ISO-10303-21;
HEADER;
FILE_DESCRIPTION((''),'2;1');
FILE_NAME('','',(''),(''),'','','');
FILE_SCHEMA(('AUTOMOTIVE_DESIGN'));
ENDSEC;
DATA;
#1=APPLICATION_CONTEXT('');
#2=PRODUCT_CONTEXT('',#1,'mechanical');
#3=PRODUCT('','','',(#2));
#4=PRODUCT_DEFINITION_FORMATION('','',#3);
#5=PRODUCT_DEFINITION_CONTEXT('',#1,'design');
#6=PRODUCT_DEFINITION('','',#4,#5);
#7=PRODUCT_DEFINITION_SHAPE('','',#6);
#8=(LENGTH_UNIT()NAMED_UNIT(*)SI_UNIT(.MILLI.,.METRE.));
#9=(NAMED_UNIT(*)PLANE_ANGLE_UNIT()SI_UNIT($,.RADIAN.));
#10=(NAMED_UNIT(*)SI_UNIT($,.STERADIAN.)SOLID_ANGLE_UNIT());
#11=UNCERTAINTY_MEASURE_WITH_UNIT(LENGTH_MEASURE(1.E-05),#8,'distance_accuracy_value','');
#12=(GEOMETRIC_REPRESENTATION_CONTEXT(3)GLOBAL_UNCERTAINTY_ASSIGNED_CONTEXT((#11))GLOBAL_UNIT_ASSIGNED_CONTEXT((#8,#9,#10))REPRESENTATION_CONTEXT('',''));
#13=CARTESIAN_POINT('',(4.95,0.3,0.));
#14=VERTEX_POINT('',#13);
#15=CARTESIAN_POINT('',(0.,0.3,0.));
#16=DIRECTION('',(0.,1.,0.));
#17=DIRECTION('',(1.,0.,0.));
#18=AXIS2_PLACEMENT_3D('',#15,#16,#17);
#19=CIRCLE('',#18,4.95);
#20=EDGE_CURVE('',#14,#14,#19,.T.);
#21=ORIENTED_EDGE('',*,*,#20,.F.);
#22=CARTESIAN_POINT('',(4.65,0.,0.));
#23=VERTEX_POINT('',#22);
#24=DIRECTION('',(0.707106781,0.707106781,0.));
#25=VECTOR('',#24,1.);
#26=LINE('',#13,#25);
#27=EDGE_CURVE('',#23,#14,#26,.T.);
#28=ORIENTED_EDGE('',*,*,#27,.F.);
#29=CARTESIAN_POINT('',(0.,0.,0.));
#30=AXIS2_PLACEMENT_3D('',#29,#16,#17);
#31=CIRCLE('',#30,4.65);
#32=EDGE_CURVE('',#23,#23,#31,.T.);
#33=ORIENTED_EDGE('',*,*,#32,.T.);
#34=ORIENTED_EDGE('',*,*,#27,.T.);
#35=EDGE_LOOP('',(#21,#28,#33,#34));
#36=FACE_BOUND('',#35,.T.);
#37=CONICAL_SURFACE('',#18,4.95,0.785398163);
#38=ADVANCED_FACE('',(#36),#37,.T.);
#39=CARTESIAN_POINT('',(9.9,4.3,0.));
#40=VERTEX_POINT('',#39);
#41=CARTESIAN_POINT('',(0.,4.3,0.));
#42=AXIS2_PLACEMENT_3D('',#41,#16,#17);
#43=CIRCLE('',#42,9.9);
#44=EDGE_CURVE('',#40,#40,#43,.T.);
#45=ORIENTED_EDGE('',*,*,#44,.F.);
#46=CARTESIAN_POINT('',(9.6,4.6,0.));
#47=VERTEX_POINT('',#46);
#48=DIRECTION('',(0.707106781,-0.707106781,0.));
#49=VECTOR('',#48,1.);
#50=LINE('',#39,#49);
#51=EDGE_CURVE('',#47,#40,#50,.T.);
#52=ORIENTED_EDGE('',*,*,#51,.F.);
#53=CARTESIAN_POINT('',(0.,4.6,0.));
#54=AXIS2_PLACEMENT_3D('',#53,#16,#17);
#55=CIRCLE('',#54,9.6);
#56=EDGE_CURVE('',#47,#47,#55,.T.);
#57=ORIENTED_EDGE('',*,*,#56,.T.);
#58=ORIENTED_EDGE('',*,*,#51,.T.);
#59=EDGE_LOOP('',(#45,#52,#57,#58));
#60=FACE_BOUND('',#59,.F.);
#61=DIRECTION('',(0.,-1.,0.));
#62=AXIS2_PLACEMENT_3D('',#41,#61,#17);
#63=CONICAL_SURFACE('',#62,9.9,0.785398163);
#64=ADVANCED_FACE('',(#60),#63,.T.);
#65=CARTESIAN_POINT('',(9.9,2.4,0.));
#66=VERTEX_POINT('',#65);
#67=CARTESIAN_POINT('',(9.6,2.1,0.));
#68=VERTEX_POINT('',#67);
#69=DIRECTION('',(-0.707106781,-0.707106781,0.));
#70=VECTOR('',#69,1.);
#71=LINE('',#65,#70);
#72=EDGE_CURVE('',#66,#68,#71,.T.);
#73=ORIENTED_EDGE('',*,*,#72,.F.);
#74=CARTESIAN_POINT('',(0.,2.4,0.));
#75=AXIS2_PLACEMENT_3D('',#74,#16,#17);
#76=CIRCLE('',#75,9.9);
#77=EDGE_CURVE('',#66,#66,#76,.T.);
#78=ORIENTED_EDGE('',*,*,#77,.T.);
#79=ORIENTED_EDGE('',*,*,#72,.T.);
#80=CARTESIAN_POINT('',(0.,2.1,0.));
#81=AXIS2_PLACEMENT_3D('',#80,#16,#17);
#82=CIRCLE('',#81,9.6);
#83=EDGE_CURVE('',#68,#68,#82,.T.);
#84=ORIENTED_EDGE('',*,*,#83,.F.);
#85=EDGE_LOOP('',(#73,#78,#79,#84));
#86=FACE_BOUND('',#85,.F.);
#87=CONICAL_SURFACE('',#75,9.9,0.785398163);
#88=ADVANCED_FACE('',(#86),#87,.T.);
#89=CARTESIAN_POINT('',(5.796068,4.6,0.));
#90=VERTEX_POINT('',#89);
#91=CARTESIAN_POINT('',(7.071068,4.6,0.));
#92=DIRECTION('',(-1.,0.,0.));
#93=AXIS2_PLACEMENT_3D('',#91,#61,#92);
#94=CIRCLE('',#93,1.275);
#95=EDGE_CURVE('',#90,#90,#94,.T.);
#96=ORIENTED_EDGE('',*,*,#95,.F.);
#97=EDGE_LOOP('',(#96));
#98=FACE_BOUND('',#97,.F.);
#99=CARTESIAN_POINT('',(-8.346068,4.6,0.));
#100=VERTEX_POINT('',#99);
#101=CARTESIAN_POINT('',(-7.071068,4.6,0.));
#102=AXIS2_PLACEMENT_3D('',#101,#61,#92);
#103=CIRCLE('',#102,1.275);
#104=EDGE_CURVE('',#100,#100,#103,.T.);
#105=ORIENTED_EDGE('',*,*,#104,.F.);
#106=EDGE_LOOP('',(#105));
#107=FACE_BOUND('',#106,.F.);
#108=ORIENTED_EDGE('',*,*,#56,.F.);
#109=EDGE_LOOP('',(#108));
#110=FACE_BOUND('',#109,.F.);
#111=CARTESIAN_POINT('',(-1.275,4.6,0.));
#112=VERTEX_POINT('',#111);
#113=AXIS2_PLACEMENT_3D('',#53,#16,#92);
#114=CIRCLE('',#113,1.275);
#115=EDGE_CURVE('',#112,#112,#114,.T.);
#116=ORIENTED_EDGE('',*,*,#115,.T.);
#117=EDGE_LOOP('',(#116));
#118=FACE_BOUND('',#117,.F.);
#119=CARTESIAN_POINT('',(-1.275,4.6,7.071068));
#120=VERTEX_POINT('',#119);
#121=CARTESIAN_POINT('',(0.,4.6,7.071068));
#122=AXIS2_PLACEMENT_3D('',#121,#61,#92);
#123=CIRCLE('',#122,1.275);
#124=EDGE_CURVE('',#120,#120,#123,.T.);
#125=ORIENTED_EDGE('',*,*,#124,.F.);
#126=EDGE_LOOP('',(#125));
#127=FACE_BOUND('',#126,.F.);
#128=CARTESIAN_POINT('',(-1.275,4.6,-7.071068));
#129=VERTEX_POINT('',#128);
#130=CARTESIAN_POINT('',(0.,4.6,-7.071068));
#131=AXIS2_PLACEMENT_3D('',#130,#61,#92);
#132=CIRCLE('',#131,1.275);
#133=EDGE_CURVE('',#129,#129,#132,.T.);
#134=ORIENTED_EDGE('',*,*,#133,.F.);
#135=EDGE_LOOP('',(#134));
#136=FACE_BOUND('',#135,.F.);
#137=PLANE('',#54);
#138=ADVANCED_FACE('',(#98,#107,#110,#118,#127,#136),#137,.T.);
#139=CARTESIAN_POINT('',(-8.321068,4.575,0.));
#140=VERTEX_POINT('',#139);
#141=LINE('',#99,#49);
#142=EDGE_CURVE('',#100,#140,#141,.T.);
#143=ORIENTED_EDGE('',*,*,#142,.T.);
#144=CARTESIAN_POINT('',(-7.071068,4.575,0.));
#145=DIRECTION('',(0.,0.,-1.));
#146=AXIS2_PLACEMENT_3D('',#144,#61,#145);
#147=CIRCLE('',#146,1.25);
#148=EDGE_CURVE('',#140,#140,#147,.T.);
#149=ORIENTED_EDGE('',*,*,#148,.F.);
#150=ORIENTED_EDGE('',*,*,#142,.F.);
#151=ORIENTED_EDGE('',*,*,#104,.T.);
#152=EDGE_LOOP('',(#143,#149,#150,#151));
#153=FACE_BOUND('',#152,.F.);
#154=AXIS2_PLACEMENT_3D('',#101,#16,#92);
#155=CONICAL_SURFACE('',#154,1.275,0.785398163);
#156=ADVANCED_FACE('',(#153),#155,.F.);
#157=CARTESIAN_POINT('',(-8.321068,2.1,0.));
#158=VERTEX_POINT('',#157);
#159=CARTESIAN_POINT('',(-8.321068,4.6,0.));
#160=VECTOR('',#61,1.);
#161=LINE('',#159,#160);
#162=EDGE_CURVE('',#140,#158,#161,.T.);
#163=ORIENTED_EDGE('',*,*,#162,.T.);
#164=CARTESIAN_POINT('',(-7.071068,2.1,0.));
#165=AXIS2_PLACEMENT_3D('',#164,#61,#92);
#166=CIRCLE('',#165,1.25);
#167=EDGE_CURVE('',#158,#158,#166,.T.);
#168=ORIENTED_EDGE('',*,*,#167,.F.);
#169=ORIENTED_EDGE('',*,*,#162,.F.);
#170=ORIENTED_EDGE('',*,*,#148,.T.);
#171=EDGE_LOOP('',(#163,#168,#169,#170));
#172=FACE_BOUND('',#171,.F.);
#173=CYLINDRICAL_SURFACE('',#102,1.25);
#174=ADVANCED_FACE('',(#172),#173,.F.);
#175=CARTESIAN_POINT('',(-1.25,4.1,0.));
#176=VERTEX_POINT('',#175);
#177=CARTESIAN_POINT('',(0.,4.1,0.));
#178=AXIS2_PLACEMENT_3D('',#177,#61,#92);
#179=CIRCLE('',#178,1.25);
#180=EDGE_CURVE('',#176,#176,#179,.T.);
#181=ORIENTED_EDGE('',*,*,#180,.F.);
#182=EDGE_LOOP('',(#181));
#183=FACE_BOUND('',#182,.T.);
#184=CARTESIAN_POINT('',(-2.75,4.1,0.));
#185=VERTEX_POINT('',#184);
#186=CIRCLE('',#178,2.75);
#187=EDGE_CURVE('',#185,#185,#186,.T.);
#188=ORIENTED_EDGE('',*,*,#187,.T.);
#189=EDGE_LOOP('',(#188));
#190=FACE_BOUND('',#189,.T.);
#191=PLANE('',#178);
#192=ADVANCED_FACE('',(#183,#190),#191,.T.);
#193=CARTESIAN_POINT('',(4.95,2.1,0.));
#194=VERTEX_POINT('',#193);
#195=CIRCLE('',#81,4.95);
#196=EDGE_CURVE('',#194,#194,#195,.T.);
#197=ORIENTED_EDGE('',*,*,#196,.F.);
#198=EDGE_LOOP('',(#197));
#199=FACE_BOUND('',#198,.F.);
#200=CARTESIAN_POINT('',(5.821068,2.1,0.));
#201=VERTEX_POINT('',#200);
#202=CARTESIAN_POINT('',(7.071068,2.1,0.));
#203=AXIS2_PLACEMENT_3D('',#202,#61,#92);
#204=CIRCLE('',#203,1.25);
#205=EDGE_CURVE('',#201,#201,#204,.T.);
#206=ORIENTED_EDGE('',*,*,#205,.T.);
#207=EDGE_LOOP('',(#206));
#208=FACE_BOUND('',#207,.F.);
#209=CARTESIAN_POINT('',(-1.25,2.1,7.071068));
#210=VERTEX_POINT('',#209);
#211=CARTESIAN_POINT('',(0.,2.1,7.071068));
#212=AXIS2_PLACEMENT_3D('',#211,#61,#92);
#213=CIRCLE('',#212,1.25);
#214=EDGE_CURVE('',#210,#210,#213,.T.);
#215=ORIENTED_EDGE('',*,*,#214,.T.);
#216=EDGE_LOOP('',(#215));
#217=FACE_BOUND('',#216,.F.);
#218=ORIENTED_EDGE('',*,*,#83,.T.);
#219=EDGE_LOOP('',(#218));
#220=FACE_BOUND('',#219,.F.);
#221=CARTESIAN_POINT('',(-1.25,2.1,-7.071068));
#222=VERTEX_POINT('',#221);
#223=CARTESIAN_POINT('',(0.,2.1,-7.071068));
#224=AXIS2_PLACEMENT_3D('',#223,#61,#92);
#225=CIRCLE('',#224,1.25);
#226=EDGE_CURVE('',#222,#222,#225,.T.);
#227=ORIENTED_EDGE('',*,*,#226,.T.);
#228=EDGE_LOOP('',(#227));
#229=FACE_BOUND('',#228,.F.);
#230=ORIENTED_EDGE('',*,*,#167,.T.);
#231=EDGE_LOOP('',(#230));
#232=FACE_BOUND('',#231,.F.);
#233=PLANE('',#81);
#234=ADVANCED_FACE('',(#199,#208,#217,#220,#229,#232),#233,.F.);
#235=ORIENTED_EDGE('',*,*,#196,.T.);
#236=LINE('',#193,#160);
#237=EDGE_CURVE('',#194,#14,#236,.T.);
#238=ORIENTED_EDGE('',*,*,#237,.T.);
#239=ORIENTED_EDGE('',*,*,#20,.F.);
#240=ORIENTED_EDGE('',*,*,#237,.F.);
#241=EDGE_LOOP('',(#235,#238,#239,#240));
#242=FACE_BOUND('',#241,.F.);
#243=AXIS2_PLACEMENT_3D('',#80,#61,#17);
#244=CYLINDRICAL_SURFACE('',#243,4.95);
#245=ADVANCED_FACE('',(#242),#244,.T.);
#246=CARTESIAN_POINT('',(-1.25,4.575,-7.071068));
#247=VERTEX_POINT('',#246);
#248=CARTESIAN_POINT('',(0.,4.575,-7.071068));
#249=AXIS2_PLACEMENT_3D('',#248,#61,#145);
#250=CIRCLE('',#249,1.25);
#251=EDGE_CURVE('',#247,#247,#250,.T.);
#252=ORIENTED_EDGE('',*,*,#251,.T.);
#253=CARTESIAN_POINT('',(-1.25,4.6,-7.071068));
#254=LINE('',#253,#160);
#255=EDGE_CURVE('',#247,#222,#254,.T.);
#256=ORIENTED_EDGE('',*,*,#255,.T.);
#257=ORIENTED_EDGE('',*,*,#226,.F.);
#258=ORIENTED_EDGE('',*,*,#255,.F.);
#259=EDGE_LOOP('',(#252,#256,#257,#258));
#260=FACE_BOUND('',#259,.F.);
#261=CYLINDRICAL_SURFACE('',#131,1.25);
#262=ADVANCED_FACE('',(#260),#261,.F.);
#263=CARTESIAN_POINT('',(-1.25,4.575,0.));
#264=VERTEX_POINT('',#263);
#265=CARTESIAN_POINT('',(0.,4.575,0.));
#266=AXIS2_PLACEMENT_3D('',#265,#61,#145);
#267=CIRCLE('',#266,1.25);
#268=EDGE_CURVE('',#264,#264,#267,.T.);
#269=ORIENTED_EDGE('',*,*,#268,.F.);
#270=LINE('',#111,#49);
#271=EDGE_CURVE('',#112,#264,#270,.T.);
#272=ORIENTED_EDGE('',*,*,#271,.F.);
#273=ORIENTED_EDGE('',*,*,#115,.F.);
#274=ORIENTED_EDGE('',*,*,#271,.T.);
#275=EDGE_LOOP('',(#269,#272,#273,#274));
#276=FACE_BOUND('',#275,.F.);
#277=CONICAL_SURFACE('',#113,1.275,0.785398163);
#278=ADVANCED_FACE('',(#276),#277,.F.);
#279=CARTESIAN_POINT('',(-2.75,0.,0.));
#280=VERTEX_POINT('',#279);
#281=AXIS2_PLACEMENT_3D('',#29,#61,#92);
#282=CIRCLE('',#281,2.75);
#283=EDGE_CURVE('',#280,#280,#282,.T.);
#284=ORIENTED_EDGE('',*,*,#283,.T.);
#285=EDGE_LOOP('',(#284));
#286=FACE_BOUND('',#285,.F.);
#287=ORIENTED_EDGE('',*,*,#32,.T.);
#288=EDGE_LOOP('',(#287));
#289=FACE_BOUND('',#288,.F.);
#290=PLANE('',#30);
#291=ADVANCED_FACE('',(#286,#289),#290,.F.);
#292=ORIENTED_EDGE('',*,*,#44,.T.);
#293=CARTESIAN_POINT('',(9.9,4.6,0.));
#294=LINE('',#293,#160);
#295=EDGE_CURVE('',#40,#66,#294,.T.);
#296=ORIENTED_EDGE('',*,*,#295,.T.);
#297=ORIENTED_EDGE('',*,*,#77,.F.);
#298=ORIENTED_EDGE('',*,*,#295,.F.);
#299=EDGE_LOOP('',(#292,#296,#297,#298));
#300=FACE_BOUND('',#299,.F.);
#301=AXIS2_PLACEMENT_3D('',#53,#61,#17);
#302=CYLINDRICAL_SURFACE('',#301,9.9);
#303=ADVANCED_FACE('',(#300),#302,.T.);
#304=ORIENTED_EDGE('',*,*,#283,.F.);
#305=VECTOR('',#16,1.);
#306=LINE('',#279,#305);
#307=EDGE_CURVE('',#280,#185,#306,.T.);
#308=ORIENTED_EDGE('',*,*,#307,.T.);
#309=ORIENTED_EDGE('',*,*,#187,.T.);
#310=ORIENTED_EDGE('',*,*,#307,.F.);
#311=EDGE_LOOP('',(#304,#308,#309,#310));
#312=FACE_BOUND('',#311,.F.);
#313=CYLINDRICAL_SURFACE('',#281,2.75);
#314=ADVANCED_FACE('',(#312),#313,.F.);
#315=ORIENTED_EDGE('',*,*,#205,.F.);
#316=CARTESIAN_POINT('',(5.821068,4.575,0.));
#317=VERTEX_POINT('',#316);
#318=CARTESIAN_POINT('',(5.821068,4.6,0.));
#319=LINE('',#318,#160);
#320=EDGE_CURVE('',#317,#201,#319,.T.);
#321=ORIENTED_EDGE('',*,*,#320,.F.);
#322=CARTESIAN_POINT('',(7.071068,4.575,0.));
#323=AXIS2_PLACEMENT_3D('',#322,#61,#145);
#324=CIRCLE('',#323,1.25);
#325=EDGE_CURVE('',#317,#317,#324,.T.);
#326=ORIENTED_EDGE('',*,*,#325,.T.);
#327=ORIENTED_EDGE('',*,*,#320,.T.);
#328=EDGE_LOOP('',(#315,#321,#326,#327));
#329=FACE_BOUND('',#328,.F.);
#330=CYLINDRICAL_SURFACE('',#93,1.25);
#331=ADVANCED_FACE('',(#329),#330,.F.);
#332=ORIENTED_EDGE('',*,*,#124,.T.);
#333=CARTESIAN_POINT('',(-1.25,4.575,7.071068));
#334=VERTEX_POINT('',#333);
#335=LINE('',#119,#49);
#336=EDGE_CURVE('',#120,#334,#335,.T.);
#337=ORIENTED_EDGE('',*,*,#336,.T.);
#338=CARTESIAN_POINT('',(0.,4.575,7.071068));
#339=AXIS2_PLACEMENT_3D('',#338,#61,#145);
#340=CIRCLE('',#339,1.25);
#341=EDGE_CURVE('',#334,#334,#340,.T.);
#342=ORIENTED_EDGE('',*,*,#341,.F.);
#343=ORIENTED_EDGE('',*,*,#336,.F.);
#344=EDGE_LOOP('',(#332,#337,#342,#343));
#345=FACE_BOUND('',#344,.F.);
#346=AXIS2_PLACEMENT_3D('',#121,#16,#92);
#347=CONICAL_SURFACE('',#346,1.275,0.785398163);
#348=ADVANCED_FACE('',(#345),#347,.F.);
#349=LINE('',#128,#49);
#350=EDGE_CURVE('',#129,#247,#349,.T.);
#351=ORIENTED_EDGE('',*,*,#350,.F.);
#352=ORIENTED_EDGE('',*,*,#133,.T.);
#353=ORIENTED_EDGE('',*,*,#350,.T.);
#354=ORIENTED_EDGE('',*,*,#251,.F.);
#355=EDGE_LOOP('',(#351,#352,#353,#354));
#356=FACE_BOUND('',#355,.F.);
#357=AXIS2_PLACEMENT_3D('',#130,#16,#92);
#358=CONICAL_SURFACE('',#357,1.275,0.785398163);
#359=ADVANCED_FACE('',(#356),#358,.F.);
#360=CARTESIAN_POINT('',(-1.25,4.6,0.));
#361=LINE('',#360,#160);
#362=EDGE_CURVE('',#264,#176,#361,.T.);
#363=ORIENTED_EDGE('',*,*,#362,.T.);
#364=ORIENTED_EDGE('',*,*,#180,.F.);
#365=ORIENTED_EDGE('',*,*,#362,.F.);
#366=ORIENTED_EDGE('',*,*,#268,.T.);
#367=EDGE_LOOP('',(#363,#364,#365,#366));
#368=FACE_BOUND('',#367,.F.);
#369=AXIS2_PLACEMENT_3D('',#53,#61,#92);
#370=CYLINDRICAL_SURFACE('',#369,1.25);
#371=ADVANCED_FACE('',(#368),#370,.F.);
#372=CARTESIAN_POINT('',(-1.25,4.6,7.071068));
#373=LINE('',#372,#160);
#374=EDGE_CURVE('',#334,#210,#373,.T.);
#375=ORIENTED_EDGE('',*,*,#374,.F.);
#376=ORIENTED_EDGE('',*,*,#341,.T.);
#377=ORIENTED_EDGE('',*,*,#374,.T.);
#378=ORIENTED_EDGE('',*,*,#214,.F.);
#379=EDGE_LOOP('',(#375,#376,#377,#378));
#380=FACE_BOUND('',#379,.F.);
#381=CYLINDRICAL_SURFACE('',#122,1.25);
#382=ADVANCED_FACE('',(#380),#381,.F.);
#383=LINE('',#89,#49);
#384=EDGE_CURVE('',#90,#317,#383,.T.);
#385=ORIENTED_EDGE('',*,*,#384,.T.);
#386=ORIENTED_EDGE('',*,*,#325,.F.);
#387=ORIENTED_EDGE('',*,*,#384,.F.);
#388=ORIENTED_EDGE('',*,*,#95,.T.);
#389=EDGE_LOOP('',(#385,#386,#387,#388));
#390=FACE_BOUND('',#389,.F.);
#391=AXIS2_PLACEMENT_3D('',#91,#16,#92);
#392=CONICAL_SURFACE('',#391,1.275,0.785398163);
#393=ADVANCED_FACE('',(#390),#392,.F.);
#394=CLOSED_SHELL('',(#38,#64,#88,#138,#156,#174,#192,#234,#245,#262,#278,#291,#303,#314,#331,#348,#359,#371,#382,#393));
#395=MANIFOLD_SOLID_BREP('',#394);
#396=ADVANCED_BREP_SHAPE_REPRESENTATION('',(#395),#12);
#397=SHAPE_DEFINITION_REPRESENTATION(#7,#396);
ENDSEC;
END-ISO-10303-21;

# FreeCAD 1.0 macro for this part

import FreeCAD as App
import Part
import Sketcher
Q = App.Units.Quantity


def edges_at(feature, points):
    """Names of the edges that pass closest to the given points."""
    edges = feature.Shape.Edges
    near = lambda p: min(range(len(edges)), key=lambda i: edges[i].distToShape(Part.Vertex(*p))[0])
    return sorted({f"Edge{near(p) + 1}" for p in points})

doc = App.newDocument("Part")
body = doc.addObject("PartDesign::Body", "Body")

sketch1 = doc.addObject("Sketcher::SketchObject", "Sketch")
body.addObject(sketch1)
sketch1.AttachmentSupport = (doc.XY_Plane, [""])
sketch1.MapMode = "FlatFace"
sketch1.addGeometry(Part.LineSegment(App.Vector(0, 0, 0), App.Vector(5, 0, 0)), False)
sketch1.addGeometry(Part.LineSegment(App.Vector(5, 0, 0), App.Vector(5, 2.1, 0)), False)
sketch1.addGeometry(Part.LineSegment(App.Vector(5, 2.1, 0), App.Vector(9.9, 2.1, 0)), False)
sketch1.addGeometry(Part.LineSegment(App.Vector(9.9, 2.1, 0), App.Vector(9.9, 4.6, 0)), False)
sketch1.addGeometry(Part.LineSegment(App.Vector(9.9, 4.6, 0), App.Vector(0, 4.6, 0)), False)
sketch1.addGeometry(Part.LineSegment(App.Vector(0, 4.6, 0), App.Vector(0, 0, 0)), False)
sketch1.addConstraint(Sketcher.Constraint("Coincident", 0, 2, 1, 1))
sketch1.addConstraint(Sketcher.Constraint("Coincident", 1, 2, 2, 1))
sketch1.addConstraint(Sketcher.Constraint("Coincident", 2, 2, 3, 1))
sketch1.addConstraint(Sketcher.Constraint("Coincident", 3, 2, 4, 1))
sketch1.addConstraint(Sketcher.Constraint("Coincident", 4, 2, 5, 1))
sketch1.addConstraint(Sketcher.Constraint("Coincident", 5, 2, 0, 1))
sketch1.addConstraint(Sketcher.Constraint("Horizontal", 0))
sketch1.addConstraint(Sketcher.Constraint("Vertical", 1))
sketch1.addConstraint(Sketcher.Constraint("Horizontal", 2))
sketch1.addConstraint(Sketcher.Constraint("Vertical", 3))
sketch1.addConstraint(Sketcher.Constraint("Horizontal", 4))
sketch1.addConstraint(Sketcher.Constraint("Vertical", 5))
sketch1.addConstraint(Sketcher.Constraint("Coincident", 5, 2, -1, 1))
sketch1.addConstraint(Sketcher.Constraint("Equal", 0, 2))
sketch1.addConstraint(Sketcher.Constraint("DistanceX", 4, 2, 4, 1, Q("9.9 mm")))
sketch1.addConstraint(Sketcher.Constraint("DistanceY", 1, 1, 1, 2, Q("2.1 mm")))
sketch1.addConstraint(Sketcher.Constraint("DistanceY", 3, 1, 3, 2, Q("2.5 mm")))
revolution = doc.addObject("PartDesign::Revolution", "Revolution")
body.addObject(revolution)
revolution.Profile = sketch1
revolution.ReferenceAxis = (sketch1, ["V_Axis"])
revolution.Angle = 360
doc.recompute()

chamfer = doc.addObject("PartDesign::Chamfer", "Chamfer")
body.addObject(chamfer)
chamfer.Base = (revolution, edges_at(revolution, [(-9.9, 4.6, 0), (-9.9, 2.1, 0), (-4.95, 0, 0)]))
chamfer.Size = 0.3

sketch2 = doc.addObject("Sketcher::SketchObject", "Sketch001")
body.addObject(sketch2)
sketch2.AttachmentSupport = (doc.XZ_Plane, [""])
sketch2.MapMode = "FlatFace"
sketch2.AttachmentOffset = App.Placement(App.Vector(0, 0, -4.6), App.Rotation())
sketch2.addGeometry(Part.Circle(App.Vector(7.1, 0, 0), App.Vector(0, 0, 1), 1.2), False)
sketch2.addGeometry(Part.Circle(App.Vector(0, 7.1, 0), App.Vector(0, 0, 1), 1.2), False)
sketch2.addGeometry(Part.Circle(App.Vector(-7.1, 0, 0), App.Vector(0, 0, 1), 1.2), False)
sketch2.addGeometry(Part.Circle(App.Vector(0, -7.1, 0), App.Vector(0, 0, 1), 1.2), False)
sketch2.addGeometry(Part.Circle(App.Vector(0, 0, 0), App.Vector(0, 0, 1), 1.2), False)
sketch2.addConstraint(Sketcher.Constraint("Coincident", 4, 3, -1, 1))
sketch2.addConstraint(Sketcher.Constraint("Equal", 0, 1))
sketch2.addConstraint(Sketcher.Constraint("Equal", 1, 2))
sketch2.addConstraint(Sketcher.Constraint("Equal", 2, 3))
sketch2.addConstraint(Sketcher.Constraint("Equal", 3, 4))
sketch2.addConstraint(Sketcher.Constraint("Symmetric", 0, 3, 2, 3, -1, 1))
sketch2.addConstraint(Sketcher.Constraint("Symmetric", 1, 3, 3, 3, -1, 1))
sketch2.addConstraint(Sketcher.Constraint("PointOnObject", 0, 3, -1))
sketch2.addConstraint(Sketcher.Constraint("PointOnObject", 1, 3, -2))
sketch2.addConstraint(Sketcher.Constraint("Diameter", 0, Q("2.5 mm")))
sketch2.addConstraint(Sketcher.Constraint("DistanceX", -1, 1, 0, 3, Q("7.071068 mm")))
sketch2.addConstraint(Sketcher.Constraint("DistanceY", -1, 1, 1, 3, Q("7.071068 mm")))
doc.recompute()
hole = doc.addObject("PartDesign::Hole", "Hole")
body.addObject(hole)
hole.Profile = sketch2
hole.ThreadType = "None"
hole.Diameter = 2.5
hole.DepthType = "ThroughAll"
hole.HoleCutType = "Countersink"
hole.HoleCutDiameter = 2.55
hole.HoleCutCountersinkAngle = 90
hole.Reversed = True

sketch3 = doc.addObject("Sketcher::SketchObject", "Sketch002")
body.addObject(sketch3)
sketch3.AttachmentSupport = (doc.XZ_Plane, [""])
sketch3.MapMode = "FlatFace"
sketch3.addGeometry(Part.Circle(App.Vector(0, 0, 0), App.Vector(0, 0, 1), 2.8), False)
sketch3.addConstraint(Sketcher.Constraint("Coincident", 0, 3, -1, 1))
sketch3.addConstraint(Sketcher.Constraint("Diameter", 0, Q("5.5 mm")))
pocket1 = doc.addObject("PartDesign::Pocket", "Pocket")
body.addObject(pocket1)
pocket1.Profile = sketch3
pocket1.Type = "TwoLengths"
pocket1.Length = 1
pocket1.Length2 = 4.1
pocket1.Reversed = True

doc.recompute()
